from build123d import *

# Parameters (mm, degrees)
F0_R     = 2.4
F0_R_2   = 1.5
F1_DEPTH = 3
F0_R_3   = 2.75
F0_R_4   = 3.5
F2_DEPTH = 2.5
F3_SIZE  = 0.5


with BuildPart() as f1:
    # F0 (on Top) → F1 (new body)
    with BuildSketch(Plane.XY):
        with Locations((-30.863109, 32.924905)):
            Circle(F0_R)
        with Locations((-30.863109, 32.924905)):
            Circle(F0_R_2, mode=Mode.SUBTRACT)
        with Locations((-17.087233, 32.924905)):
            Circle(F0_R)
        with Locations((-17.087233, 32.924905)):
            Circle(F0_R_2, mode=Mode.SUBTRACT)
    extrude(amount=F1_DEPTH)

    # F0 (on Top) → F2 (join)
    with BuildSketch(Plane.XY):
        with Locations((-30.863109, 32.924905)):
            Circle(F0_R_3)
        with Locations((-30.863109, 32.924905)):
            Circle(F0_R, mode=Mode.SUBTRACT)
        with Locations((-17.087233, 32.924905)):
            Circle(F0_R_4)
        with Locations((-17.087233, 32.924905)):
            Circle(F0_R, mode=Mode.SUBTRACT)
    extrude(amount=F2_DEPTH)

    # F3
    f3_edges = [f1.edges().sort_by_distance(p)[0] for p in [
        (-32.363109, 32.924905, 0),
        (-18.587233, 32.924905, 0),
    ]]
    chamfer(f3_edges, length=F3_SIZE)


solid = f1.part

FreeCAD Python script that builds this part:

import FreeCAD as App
import Part
import Sketcher

V = App.Vector
Q = App.Units.Quantity


def edges_at(feature, points):
    """Names of the edges that pass closest to the given points."""
    edges = feature.Shape.Edges
    near = lambda p: min(range(len(edges)), key=lambda i: edges[i].distToShape(Part.Vertex(*p))[0])
    return sorted({f"Edge{near(p) + 1}" for p in points})

doc = App.newDocument("Part")
body = doc.addObject("PartDesign::Body", "Body")
body.AllowCompound = True

# Sketch on XY plane
sketch1 = body.newObject("Sketcher::SketchObject", "Sketch")
sketch1.AttachmentSupport = (doc.getObject("XY_Plane"), [""])
sketch1.MapMode = "FlatFace"
sketch1.addGeometry([
    Part.Circle(V(-30.9, 32.9, 0), V(0, 0, 1), 2.4),
    Part.Circle(V(-30.9, 32.9, 0), V(0, 0, 1), 1.5),
    Part.Circle(V(-17.1, 32.9, 0), V(0, 0, 1), 2.4),
    Part.Circle(V(-17.1, 32.9, 0), V(0, 0, 1), 1.5),
], False)
sketch1.addConstraint([
    Sketcher.Constraint("Coincident", 1, 3, 0, 3),
    Sketcher.Constraint("Coincident", 3, 3, 2, 3),
    Sketcher.Constraint("Equal", 0, 2),
    Sketcher.Constraint("Equal", 1, 3),
    Sketcher.Constraint("Horizontal", 1, 3, 2, 3),
    Sketcher.Constraint("Diameter", 1, Q("3 mm")),
    Sketcher.Constraint("Diameter", 0, Q("4.8 mm")),
    Sketcher.Constraint("DistanceX", 0, 3, -1, 1, Q("30.863109 mm")),
    Sketcher.Constraint("DistanceY", -1, 1, 0, 3, Q("32.924905 mm")),
    Sketcher.Constraint("DistanceX", 2, 3, -1, 1, Q("17.087233 mm")),
])
pad1 = body.newObject("PartDesign::Pad", "Pad")
pad1.Profile = sketch1
pad1.Length = 3

# Sketch on XY plane
sketch2 = body.newObject("Sketcher::SketchObject", "Sketch001")
sketch2.AttachmentSupport = (doc.getObject("XY_Plane"), [""])
sketch2.MapMode = "FlatFace"
sketch2.addGeometry([
    Part.Circle(V(-30.9, 32.9, 0), V(0, 0, 1), 2.8),
    Part.Circle(V(-30.9, 32.9, 0), V(0, 0, 1), 2.4),
    Part.Circle(V(-17.1, 32.9, 0), V(0, 0, 1), 3.5),
    Part.Circle(V(-17.1, 32.9, 0), V(0, 0, 1), 2.4),
], False)
sketch2.addConstraint([
    Sketcher.Constraint("Coincident", 1, 3, 0, 3),
    Sketcher.Constraint("Coincident", 3, 3, 2, 3),
    Sketcher.Constraint("Equal", 1, 3),
    Sketcher.Constraint("Horizontal", 1, 3, 2, 3),
    Sketcher.Constraint("Diameter", 2, Q("7 mm")),
    Sketcher.Constraint("Diameter", 0, Q("5.5 mm")),
    Sketcher.Constraint("Diameter", 1, Q("4.8 mm")),
    Sketcher.Constraint("DistanceX", 0, 3, -1, 1, Q("30.863109 mm")),
    Sketcher.Constraint("DistanceY", -1, 1, 0, 3, Q("32.924905 mm")),
    Sketcher.Constraint("DistanceX", 2, 3, -1, 1, Q("17.087233 mm")),
])
pad2 = body.newObject("PartDesign::Pad", "Pad001")
pad2.Profile = sketch2
pad2.Length = 2.5
doc.recompute()

chamfer = body.newObject("PartDesign::Chamfer", "Chamfer")
chamfer.Base = (pad2, edges_at(pad2, [(-32.363, 32.925, 0), (-18.587, 32.925, 0)]))
chamfer.Size = 0.5

doc.recompute()
